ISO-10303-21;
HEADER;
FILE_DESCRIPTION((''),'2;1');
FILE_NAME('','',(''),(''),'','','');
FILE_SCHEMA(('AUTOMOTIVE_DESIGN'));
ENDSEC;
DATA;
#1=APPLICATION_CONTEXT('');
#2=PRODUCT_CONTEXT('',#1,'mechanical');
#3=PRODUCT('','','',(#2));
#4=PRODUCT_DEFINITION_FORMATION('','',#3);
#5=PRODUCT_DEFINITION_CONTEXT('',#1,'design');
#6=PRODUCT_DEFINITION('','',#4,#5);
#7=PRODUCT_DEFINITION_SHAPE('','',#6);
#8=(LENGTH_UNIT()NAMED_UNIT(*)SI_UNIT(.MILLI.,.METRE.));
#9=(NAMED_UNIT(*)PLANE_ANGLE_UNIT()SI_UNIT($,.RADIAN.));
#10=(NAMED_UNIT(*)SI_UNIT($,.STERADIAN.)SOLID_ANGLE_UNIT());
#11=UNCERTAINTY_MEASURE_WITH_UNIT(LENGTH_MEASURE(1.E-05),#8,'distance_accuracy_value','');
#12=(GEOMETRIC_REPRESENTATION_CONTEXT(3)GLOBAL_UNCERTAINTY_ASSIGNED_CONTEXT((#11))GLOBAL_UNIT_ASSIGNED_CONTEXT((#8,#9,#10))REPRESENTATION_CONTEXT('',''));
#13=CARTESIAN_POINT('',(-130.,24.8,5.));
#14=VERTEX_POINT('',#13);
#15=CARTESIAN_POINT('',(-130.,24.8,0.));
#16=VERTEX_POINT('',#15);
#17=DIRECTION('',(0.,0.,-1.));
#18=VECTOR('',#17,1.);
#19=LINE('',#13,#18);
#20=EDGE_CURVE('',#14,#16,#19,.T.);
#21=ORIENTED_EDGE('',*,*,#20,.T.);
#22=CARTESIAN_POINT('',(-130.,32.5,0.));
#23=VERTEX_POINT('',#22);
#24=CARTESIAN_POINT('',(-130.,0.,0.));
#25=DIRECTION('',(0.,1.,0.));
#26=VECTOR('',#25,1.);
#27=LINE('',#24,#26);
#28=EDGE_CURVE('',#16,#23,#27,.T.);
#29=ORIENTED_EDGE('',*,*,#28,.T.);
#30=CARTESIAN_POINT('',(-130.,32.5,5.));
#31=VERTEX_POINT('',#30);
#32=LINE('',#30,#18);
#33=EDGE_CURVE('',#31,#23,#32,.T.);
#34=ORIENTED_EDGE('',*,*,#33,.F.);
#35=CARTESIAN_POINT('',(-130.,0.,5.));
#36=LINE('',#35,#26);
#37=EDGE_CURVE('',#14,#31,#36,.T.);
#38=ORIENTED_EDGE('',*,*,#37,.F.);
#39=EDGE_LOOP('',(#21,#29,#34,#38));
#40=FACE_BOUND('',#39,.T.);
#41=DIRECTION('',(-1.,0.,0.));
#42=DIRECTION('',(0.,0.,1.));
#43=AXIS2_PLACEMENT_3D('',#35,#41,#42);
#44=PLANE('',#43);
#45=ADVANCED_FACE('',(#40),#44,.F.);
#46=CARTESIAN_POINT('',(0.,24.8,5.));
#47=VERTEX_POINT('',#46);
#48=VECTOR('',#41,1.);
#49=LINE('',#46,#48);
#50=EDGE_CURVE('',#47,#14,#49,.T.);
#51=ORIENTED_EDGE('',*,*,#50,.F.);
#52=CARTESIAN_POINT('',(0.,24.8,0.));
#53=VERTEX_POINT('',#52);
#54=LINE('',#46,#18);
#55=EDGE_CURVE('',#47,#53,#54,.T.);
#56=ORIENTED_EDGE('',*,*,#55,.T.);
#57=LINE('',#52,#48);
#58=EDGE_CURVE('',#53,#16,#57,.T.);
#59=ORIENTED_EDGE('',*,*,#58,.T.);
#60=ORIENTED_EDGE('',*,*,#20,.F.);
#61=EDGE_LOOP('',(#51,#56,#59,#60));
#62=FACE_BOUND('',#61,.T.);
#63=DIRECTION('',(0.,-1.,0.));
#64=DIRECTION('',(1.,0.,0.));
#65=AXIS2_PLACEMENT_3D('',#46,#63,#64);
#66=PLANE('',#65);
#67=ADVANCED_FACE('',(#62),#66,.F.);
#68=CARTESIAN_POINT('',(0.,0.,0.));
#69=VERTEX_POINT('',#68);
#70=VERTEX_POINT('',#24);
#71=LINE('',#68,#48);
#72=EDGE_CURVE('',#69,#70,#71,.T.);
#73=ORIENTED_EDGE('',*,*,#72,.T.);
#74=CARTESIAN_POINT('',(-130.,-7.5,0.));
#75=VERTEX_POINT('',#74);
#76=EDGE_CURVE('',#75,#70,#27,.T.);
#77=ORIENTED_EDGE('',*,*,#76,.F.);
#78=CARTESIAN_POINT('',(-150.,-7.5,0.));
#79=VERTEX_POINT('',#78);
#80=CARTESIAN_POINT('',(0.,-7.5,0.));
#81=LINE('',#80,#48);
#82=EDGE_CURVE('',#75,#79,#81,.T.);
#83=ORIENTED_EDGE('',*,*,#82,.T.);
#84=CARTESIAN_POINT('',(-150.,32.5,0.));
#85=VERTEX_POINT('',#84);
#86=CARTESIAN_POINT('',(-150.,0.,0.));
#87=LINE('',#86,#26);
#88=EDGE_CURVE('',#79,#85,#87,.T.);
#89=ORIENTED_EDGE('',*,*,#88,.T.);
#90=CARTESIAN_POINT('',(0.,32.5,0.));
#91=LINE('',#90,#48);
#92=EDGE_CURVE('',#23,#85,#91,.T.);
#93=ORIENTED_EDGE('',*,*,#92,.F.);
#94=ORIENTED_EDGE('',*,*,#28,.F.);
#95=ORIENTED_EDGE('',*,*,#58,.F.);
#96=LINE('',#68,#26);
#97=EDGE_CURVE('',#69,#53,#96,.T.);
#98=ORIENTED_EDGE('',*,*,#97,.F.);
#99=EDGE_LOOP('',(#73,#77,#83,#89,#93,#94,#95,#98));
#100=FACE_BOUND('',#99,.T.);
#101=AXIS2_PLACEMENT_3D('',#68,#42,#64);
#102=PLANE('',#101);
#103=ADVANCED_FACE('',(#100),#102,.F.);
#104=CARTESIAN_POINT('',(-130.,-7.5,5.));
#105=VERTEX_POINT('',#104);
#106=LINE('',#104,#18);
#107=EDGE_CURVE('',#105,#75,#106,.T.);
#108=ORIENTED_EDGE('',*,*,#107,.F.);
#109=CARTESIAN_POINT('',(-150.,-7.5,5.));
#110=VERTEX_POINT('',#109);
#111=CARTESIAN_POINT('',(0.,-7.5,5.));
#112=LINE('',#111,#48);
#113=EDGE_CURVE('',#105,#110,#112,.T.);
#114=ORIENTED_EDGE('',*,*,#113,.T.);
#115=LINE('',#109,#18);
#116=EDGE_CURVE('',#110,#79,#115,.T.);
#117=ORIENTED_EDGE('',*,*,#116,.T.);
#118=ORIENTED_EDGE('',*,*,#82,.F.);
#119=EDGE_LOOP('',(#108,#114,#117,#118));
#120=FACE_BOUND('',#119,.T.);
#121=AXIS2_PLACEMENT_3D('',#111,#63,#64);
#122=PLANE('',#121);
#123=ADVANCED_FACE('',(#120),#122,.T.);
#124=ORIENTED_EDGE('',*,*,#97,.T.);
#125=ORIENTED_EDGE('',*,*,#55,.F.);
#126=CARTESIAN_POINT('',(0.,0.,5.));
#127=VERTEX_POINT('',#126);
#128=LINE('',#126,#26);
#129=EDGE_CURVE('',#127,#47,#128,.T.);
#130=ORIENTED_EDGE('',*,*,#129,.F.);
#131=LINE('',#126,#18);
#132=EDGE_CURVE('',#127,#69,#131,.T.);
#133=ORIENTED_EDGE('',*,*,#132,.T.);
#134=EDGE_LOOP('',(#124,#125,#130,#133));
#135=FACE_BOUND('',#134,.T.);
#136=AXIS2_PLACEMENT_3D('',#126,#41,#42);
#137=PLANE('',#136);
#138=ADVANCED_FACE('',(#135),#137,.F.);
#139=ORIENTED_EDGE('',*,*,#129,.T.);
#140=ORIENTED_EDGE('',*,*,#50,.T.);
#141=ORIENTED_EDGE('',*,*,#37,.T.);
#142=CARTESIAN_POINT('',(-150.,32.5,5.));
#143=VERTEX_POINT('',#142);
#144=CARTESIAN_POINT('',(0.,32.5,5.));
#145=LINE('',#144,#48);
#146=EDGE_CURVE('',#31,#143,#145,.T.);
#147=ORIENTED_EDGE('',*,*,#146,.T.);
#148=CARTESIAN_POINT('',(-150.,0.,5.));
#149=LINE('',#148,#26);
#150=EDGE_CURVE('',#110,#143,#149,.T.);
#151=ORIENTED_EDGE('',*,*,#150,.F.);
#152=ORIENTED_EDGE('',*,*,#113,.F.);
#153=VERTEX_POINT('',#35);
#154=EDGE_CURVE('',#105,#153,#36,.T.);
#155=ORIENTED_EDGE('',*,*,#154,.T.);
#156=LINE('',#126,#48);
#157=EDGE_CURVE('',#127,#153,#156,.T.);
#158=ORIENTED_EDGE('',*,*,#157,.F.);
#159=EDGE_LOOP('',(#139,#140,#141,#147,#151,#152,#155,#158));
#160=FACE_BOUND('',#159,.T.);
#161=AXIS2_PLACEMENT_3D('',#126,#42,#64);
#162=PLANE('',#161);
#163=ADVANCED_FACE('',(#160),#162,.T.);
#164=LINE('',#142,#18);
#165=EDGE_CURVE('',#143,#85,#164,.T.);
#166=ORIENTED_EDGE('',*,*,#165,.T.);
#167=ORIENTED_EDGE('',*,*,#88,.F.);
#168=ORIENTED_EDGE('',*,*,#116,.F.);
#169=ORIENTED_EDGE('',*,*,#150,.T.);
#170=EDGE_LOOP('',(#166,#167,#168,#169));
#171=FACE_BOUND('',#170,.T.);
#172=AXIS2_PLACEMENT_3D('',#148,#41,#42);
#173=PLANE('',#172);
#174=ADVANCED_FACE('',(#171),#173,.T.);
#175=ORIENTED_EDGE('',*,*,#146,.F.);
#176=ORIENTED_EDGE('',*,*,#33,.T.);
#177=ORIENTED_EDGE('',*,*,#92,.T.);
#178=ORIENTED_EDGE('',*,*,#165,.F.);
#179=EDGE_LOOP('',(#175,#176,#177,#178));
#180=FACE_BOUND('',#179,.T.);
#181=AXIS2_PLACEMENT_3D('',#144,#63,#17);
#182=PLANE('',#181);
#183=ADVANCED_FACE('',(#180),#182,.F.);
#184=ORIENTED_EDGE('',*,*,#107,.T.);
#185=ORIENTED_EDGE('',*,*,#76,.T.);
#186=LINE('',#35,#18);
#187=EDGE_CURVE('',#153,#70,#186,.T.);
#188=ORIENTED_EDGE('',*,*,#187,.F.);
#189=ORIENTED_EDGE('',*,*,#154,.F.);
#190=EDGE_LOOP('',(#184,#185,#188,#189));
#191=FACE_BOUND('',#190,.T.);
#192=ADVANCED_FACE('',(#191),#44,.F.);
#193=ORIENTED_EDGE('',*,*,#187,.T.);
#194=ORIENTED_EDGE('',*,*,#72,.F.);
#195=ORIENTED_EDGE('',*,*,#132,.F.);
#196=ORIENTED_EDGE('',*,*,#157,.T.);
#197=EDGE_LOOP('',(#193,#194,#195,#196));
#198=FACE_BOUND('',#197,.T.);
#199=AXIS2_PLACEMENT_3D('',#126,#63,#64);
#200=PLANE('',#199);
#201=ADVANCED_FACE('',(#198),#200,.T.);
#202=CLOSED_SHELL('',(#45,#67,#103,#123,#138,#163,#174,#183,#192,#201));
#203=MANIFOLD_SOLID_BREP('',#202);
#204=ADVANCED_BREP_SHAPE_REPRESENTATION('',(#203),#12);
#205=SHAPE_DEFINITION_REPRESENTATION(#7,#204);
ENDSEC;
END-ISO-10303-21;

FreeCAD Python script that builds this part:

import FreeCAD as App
import Part
import Sketcher

V = App.Vector
Q = App.Units.Quantity

doc = App.newDocument("Part")
body = doc.addObject("PartDesign::Body", "Body")

# Sketch on XY plane
sketch1 = body.newObject("Sketcher::SketchObject", "Sketch")
sketch1.AttachmentSupport = (doc.getObject("XY_Plane"), [""])
sketch1.MapMode = "FlatFace"
sketch1.addGeometry([
    Part.LineSegment(V(-130, -7.5, 0), V(-130, 0, 0)),  # 0
    Part.LineSegment(V(-130, 0, 0), V(0, 0, 0)),  # 1
    Part.LineSegment(V(0, 0, 0), V(0, 24.8, 0)),  # 2
    Part.LineSegment(V(0, 24.8, 0), V(-130, 24.8, 0)),  # 3
    Part.LineSegment(V(-130, 24.8, 0), V(-130, 32.5, 0)),  # 4
    Part.LineSegment(V(-130, 32.5, 0), V(-150, 32.5, 0)),  # 5
    Part.LineSegment(V(-150, 32.5, 0), V(-150, -7.5, 0)),  # 6
    Part.LineSegment(V(-150, -7.5, 0), V(-130, -7.5, 0)),  # 7
], False)
sketch1.addConstraint([
    Sketcher.Constraint("Coincident", 0, 2, 1, 1),
    Sketcher.Constraint("Coincident", 1, 2, 2, 1),
    Sketcher.Constraint("Coincident", 2, 2, 3, 1),
    Sketcher.Constraint("Coincident", 3, 2, 4, 1),
    Sketcher.Constraint("Coincident", 4, 2, 5, 1),
    Sketcher.Constraint("Coincident", 5, 2, 6, 1),
    Sketcher.Constraint("Coincident", 6, 2, 7, 1),
    Sketcher.Constraint("Coincident", 7, 2, 0, 1),
    Sketcher.Constraint("Vertical", 0),
    Sketcher.Constraint("Horizontal", 1),
    Sketcher.Constraint("Vertical", 2),
    Sketcher.Constraint("Horizontal", 3),
    Sketcher.Constraint("Vertical", 4),
    Sketcher.Constraint("Horizontal", 5),
    Sketcher.Constraint("Vertical", 6),
    Sketcher.Constraint("Horizontal", 7),
    Sketcher.Constraint("Coincident", 1, 2, -1, 1),
    Sketcher.Constraint("Vertical", 0, 2, 3, 2),
    Sketcher.Constraint("DistanceX", 1, 1, 1, 2, Q("130 mm")),
    Sketcher.Constraint("DistanceX", 5, 2, 5, 1, Q("20 mm")),
    Sketcher.Constraint("DistanceY", 6, 2, 6, 1, Q("40 mm")),
    Sketcher.Constraint("DistanceY", 0, 1, 0, 2, Q("7.5 mm")),
    Sketcher.Constraint("DistanceY", 2, 1, 2, 2, Q("24.8 mm")),
])
pad1 = body.newObject("PartDesign::Pad", "Pad")
pad1.Profile = sketch1
pad1.Length = 5

doc.recompute()
